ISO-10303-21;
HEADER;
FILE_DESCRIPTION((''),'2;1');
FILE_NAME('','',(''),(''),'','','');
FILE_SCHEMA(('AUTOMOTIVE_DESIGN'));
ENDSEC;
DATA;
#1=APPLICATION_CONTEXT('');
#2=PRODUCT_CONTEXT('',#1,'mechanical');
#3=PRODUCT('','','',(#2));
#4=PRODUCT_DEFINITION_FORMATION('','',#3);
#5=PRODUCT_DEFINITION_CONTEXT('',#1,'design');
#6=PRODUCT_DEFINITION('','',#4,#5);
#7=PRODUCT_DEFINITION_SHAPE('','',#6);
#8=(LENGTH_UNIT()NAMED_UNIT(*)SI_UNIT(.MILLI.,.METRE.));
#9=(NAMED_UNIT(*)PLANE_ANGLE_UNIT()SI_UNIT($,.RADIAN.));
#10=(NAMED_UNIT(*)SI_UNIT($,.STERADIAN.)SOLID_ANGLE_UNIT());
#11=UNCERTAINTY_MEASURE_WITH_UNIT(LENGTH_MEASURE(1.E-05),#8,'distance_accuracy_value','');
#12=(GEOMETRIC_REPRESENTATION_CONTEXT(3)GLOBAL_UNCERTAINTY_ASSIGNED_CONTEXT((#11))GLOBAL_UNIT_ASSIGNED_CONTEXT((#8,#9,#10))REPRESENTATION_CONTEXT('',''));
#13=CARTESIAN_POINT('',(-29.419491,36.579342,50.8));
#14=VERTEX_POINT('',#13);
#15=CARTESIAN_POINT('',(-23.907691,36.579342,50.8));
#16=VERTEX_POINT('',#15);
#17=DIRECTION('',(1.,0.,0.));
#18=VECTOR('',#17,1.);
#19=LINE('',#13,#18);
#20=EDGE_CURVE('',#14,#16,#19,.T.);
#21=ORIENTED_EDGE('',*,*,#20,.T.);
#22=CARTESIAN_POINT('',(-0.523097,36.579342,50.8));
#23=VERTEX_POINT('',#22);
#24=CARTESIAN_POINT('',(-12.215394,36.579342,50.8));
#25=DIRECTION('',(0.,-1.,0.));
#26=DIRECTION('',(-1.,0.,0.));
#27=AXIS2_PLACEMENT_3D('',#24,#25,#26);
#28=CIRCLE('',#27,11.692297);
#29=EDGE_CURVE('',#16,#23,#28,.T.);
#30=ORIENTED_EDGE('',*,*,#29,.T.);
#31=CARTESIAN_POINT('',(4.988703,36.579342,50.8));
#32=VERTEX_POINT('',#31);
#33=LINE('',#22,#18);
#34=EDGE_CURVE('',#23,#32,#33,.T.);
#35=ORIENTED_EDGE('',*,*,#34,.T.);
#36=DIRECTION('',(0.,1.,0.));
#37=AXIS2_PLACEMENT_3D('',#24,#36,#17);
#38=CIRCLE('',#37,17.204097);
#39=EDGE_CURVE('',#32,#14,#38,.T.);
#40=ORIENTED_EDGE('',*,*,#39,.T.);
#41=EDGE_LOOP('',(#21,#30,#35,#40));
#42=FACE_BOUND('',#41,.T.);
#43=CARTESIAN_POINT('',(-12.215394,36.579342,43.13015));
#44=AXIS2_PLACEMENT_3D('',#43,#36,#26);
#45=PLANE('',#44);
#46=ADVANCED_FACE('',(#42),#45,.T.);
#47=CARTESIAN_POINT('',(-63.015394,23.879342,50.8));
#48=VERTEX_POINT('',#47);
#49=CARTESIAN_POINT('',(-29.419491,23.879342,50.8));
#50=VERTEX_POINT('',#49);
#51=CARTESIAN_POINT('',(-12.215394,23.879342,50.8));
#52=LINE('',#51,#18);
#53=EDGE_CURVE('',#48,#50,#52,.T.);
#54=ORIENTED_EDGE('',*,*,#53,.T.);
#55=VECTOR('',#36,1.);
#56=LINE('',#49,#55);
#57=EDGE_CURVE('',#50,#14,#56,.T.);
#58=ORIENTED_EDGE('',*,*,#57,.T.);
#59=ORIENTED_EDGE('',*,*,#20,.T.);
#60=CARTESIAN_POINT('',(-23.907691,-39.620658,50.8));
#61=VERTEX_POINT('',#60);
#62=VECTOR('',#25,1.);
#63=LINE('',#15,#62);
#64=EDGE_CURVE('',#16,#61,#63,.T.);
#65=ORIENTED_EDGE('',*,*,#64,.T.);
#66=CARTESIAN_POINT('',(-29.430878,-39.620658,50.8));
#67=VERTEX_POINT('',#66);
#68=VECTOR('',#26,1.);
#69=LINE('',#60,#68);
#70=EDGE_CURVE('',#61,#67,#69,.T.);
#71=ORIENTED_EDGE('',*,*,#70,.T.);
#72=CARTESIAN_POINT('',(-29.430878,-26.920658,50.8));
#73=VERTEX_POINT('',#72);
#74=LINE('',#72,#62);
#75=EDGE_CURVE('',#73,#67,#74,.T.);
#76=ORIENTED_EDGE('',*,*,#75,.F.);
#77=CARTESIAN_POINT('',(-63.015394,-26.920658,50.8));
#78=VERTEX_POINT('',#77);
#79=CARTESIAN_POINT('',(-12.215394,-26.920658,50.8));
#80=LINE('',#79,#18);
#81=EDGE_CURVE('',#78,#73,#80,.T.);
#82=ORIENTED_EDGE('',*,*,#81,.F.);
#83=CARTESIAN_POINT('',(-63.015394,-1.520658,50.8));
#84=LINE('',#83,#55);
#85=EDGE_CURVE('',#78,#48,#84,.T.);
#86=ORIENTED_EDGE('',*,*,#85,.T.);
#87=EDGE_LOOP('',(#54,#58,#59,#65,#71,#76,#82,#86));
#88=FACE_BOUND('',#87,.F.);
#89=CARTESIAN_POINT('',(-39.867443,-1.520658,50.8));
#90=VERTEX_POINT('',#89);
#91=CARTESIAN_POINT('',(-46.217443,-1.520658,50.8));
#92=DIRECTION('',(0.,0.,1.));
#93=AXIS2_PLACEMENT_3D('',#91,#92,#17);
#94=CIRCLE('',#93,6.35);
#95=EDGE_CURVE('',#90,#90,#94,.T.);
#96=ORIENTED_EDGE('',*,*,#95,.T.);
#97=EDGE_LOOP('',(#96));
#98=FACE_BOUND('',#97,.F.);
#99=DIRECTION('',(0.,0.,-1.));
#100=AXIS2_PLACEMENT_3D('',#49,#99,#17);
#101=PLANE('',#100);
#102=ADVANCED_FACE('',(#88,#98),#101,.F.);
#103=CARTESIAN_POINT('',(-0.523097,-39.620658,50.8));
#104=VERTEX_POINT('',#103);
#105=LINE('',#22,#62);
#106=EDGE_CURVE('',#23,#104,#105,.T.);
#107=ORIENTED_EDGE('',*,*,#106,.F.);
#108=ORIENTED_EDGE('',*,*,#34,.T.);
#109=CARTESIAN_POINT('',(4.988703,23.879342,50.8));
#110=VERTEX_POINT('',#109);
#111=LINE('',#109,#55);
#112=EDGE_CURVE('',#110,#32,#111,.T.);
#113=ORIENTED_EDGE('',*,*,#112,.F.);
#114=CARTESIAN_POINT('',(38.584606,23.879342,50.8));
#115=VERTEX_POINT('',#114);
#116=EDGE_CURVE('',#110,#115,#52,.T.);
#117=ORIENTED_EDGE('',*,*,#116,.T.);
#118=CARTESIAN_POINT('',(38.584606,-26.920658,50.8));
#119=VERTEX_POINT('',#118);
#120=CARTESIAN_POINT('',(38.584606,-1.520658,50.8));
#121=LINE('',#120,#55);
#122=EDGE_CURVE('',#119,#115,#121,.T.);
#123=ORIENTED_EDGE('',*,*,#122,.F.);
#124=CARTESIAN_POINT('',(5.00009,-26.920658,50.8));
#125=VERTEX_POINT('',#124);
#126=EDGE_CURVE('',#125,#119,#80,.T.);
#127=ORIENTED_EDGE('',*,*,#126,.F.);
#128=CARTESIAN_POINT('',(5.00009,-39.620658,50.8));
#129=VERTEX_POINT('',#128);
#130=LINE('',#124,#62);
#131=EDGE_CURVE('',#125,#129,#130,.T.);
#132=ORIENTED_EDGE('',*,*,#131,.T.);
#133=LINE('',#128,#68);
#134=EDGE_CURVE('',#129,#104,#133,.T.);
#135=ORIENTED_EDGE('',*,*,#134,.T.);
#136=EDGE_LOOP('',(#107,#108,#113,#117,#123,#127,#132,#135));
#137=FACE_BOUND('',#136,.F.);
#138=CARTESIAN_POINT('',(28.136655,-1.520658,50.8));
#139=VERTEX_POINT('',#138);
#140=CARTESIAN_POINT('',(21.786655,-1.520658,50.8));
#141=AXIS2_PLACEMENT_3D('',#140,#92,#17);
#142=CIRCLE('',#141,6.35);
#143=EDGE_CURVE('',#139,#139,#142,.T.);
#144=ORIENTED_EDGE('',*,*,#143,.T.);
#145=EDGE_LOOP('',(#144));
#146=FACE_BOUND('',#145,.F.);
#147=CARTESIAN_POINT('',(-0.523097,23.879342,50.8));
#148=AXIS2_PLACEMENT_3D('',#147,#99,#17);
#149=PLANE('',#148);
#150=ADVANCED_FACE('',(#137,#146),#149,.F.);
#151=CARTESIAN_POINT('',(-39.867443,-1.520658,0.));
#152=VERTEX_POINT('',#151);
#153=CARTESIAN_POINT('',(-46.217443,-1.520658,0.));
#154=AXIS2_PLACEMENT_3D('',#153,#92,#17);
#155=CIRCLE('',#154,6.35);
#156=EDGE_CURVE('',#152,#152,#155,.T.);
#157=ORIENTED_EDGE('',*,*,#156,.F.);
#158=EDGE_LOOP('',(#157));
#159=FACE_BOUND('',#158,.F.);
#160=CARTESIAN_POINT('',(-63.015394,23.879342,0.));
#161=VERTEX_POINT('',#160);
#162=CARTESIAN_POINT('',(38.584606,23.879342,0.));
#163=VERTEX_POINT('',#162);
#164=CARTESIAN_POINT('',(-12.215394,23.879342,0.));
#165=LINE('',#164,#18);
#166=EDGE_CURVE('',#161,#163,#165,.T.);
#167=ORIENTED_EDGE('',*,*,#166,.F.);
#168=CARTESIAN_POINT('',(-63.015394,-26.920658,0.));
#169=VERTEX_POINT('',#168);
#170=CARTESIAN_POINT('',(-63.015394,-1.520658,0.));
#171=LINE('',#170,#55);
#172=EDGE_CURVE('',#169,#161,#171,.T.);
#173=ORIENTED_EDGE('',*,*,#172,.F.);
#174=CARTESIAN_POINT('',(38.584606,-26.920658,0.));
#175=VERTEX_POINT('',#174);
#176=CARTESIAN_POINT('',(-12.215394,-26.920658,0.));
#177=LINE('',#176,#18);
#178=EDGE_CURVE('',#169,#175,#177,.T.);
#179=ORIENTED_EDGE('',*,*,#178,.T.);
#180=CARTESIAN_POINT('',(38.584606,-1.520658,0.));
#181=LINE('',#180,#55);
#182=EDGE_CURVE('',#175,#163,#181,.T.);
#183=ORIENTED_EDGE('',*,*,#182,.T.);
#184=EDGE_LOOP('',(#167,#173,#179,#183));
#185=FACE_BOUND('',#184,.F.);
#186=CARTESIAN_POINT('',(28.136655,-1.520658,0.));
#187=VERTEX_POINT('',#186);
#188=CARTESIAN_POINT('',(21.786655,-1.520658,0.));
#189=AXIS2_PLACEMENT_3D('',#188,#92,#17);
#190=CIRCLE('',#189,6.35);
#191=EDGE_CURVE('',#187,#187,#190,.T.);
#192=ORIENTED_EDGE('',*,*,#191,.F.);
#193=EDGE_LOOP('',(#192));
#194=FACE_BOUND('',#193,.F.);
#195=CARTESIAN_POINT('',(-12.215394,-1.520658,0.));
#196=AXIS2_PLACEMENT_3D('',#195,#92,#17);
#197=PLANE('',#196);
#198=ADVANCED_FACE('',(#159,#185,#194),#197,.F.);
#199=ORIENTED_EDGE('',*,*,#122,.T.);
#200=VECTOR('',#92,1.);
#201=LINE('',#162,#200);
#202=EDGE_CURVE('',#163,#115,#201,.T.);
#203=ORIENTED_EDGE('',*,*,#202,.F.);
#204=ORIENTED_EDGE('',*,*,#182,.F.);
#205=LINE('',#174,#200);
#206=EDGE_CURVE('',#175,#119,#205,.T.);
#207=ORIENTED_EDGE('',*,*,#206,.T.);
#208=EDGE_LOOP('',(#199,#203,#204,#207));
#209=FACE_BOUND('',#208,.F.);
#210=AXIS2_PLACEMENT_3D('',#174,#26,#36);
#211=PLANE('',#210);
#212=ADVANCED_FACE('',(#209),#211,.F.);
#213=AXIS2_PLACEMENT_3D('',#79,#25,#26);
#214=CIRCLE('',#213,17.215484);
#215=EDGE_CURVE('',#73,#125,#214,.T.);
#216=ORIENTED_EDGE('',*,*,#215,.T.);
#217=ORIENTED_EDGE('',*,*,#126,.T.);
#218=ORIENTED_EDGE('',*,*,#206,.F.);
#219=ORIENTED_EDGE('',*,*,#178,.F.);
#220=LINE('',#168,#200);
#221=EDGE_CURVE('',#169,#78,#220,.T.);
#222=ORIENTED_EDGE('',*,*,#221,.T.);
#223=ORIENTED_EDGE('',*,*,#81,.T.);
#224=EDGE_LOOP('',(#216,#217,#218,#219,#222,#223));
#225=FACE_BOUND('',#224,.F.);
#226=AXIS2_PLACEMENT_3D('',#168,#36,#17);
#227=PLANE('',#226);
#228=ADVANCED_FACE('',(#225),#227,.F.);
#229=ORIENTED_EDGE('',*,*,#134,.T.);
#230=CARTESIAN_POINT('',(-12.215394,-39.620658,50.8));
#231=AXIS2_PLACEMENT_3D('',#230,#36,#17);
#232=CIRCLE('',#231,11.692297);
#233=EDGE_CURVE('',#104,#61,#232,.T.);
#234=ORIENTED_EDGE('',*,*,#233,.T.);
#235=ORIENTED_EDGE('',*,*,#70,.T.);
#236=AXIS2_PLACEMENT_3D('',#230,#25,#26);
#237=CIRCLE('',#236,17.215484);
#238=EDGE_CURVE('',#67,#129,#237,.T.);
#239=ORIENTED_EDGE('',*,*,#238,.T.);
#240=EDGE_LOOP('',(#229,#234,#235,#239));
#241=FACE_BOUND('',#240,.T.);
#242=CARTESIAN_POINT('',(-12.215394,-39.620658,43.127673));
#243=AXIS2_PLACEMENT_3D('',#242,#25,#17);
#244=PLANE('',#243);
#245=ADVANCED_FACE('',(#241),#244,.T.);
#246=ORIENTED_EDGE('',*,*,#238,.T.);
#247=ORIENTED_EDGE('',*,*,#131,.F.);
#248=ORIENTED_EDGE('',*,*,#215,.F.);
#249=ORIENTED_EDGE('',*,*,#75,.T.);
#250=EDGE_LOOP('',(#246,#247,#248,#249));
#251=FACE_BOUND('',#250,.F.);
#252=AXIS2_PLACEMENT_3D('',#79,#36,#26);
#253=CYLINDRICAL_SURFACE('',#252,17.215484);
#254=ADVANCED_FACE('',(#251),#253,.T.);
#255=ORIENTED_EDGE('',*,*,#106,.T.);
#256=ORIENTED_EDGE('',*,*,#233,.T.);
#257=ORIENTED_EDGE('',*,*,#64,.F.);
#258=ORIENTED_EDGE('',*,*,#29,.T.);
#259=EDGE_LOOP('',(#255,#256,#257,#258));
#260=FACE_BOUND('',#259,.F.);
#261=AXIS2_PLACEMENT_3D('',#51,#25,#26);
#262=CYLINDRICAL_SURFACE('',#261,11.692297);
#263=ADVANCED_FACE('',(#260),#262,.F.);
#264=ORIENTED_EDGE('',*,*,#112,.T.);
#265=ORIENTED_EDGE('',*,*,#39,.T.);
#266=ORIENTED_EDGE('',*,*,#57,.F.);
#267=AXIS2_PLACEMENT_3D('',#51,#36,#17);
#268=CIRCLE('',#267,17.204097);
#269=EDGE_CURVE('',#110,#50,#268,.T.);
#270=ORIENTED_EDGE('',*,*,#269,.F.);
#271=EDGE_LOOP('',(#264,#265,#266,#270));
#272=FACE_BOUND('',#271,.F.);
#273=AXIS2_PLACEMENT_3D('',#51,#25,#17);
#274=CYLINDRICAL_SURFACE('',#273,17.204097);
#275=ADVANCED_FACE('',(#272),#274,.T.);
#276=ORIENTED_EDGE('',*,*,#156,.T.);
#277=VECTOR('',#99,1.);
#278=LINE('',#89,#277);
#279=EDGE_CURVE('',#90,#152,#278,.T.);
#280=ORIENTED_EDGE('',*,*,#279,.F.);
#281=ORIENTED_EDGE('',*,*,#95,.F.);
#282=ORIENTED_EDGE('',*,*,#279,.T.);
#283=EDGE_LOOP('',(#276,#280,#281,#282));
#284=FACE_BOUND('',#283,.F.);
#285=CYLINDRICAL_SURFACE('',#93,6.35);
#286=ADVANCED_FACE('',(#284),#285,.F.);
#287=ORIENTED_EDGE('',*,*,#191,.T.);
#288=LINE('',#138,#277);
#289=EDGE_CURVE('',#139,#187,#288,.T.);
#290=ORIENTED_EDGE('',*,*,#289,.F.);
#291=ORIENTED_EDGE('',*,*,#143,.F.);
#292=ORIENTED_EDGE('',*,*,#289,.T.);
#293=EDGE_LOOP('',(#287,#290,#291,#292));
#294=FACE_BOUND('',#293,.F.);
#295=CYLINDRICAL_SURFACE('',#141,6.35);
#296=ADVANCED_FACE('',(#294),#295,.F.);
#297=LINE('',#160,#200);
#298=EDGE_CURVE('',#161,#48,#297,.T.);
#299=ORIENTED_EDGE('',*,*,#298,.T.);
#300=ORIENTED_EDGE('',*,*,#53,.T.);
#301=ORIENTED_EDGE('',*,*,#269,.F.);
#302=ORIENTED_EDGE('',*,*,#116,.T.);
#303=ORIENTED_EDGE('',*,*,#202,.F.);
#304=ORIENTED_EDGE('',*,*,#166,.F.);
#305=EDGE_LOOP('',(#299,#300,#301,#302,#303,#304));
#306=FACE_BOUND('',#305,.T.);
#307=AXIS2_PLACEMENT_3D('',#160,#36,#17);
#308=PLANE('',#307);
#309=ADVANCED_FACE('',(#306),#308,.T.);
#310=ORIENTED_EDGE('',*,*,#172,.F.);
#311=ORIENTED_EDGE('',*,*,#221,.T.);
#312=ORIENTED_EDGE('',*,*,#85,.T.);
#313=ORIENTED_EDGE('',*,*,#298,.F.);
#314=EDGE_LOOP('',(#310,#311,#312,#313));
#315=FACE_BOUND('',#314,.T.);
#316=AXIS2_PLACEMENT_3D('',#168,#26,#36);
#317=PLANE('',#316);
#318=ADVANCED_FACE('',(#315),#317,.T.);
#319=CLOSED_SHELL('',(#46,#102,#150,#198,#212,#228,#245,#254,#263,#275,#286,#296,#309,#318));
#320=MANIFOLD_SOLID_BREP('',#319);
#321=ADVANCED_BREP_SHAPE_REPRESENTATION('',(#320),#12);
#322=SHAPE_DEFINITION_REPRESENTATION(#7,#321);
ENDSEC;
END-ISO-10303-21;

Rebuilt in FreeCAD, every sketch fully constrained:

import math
import FreeCAD as App
import Part
import Sketcher
from FreeCAD import Vector
Q = App.Units.Quantity

doc = App.newDocument("Part")
body = doc.addObject("PartDesign::Body", "Body")

sketch1 = body.newObject("Sketcher::SketchObject", "Sketch")
sketch1.AttachmentSupport = (doc.getObject("XY_Plane"), [""])
sketch1.MapMode = "FlatFace"
sketch1.addGeometry([
    Part.LineSegment(Vector(-63, 24, 0), Vector(-63, -27, 0)),
    Part.LineSegment(Vector(-63, -27, 0), Vector(39, -27, 0)),
    Part.LineSegment(Vector(39, -27, 0), Vector(39, 24, 0)),
    Part.LineSegment(Vector(39, 24, 0), Vector(-63, 24, 0)),
], False)
sketch1.addConstraint([
    Sketcher.Constraint("Coincident", 0, 2, 1, 1),
    Sketcher.Constraint("Coincident", 1, 2, 2, 1),
    Sketcher.Constraint("Coincident", 2, 2, 3, 1),
    Sketcher.Constraint("Coincident", 3, 2, 0, 1),
    Sketcher.Constraint("Vertical", 0),
    Sketcher.Constraint("Horizontal", 1),
    Sketcher.Constraint("Vertical", 2),
    Sketcher.Constraint("Horizontal", 3),
    Sketcher.Constraint("DistanceX", 1, 1, 1, 2, Q("4 in")),
    Sketcher.Constraint("DistanceY", 0, 2, 0, 1, Q("2 in")),
    Sketcher.Constraint("DistanceX", 0, 2, -1, 1, Q("63.015394 mm")),
    Sketcher.Constraint("DistanceY", 0, 2, -1, 1, Q("26.920658 mm")),
])
pad1 = body.newObject("PartDesign::Pad", "Pad")
pad1.Profile = sketch1
pad1.Length = Q("2 in")

sketch2 = body.newObject("Sketcher::SketchObject", "Sketch001")
sketch2.AttachmentSupport = (doc.getObject("XZ_Plane"), [""])
sketch2.MapMode = "FlatFace"
sketch2.AttachmentOffset = App.Placement(Vector(0, 0, 26.920658), App.Rotation())
sketch2.addGeometry([
    Part.LineSegment(Vector(-1, 51, 0), Vector(-24, 51, 0)),
    Part.ArcOfCircle(Part.Circle(Vector(-12, 51, 0), Vector(0, 0, 1), 12), math.radians(180), math.radians(360)),
], False)
sketch2.addConstraint([
    Sketcher.Constraint("Coincident", 0, 1, 1, 2),
    Sketcher.Constraint("Coincident", 1, 1, 0, 2),
    Sketcher.Constraint("Horizontal", 0),
    Sketcher.Constraint("Horizontal", 1, 3, 0, 1),
    Sketcher.Constraint("DistanceY", -1, 1, 1, 3, Q("2 in")),
    Sketcher.Constraint("Radius", 1, Q("11.692297 mm")),
    Sketcher.Constraint("DistanceX", 1, 1, -1, 1, Q("23.907691 mm")),
])
pocket1 = body.newObject("PartDesign::Pocket", "Pocket")
pocket1.Profile = sketch2
pocket1.Length = Q("2.35 in")

sketch3 = body.newObject("Sketcher::SketchObject", "Sketch002")
sketch3.AttachmentSupport = (doc.getObject("XZ_Plane"), [""])
sketch3.MapMode = "FlatFace"
sketch3.AttachmentOffset = App.Placement(Vector(0, 0, 26.920658), App.Rotation())
sketch3.addGeometry([
    Part.LineSegment(Vector(-24, 51, 0), Vector(-29, 51, 0)),
    Part.ArcOfCircle(Part.Circle(Vector(-12, 51, 0), Vector(0, 0, 1), 17), math.radians(180), math.radians(360)),
    Part.LineSegment(Vector(5, 51, 0), Vector(-1, 51, 0)),
    Part.ArcOfCircle(Part.Circle(Vector(-12, 51, 0), Vector(0, 0, 1), 12), math.radians(180), math.radians(360)),
], False)
sketch3.addConstraint([
    Sketcher.Constraint("Coincident", 0, 2, 1, 1),
    Sketcher.Constraint("Coincident", 1, 2, 2, 1),
    Sketcher.Constraint("Coincident", 2, 2, 3, 2),
    Sketcher.Constraint("Coincident", 3, 1, 0, 1),
    Sketcher.Constraint("Horizontal", 0),
    Sketcher.Constraint("Horizontal", 2),
    Sketcher.Constraint("Coincident", 3, 3, 1, 3),
    Sketcher.Constraint("Horizontal", 3, 3, 0, 2),
    Sketcher.Constraint("Horizontal", 0, 2, 1, 2),
    Sketcher.Constraint("DistanceY", -1, 1, 1, 3, Q("2 in")),
    Sketcher.Constraint("Radius", 1, Q("17.215484 mm")),
    Sketcher.Constraint("Radius", 3, Q("11.692297 mm")),
    Sketcher.Constraint("DistanceX", 0, 2, -1, 1, Q("29.430878 mm")),
])
pad2 = body.newObject("PartDesign::Pad", "Pad001")
pad2.Profile = sketch3
pad2.Length = Q("0.5 in")

sketch4 = body.newObject("Sketcher::SketchObject", "Sketch003")
sketch4.AttachmentSupport = (doc.getObject("XZ_Plane"), [""])
sketch4.MapMode = "FlatFace"
sketch4.AttachmentOffset = App.Placement(Vector(0, 0, -23.879342), App.Rotation())
sketch4.addGeometry([
    Part.LineSegment(Vector(-1, 51, 0), Vector(5, 51, 0)),
    Part.ArcOfCircle(Part.Circle(Vector(-12, 51, 0), Vector(0, 0, 1), 17), math.radians(180), math.radians(360)),
    Part.LineSegment(Vector(-29, 51, 0), Vector(-24, 51, 0)),
    Part.ArcOfCircle(Part.Circle(Vector(-12, 51, 0), Vector(0, 0, 1), 12), math.radians(180), math.radians(360)),
], False)
sketch4.addConstraint([
    Sketcher.Constraint("Coincident", 0, 2, 1, 2),
    Sketcher.Constraint("Coincident", 1, 1, 2, 1),
    Sketcher.Constraint("Coincident", 2, 2, 3, 1),
    Sketcher.Constraint("Coincident", 3, 2, 0, 1),
    Sketcher.Constraint("Horizontal", 0),
    Sketcher.Constraint("Horizontal", 2),
    Sketcher.Constraint("Coincident", 3, 3, 1, 3),
    Sketcher.Constraint("Horizontal", 3, 3, 0, 2),
    Sketcher.Constraint("Horizontal", 0, 2, 1, 1),
    Sketcher.Constraint("DistanceY", -1, 1, 1, 3, Q("2 in")),
    Sketcher.Constraint("DistanceX", 0, 1, 0, 2, Q("0.217 in")),
    Sketcher.Constraint("Radius", 1, Q("17.204097 mm")),
    Sketcher.Constraint("DistanceX", 1, 1, -1, 1, Q("29.419491 mm")),
])
pad3 = body.newObject("PartDesign::Pad", "Pad002")
pad3.Profile = sketch4
pad3.Length = Q("0.5 in")
pad3.Reversed = True

sketch5 = body.newObject("Sketcher::SketchObject", "Sketch004")
sketch5.AttachmentSupport = (doc.getObject("XY_Plane"), [""])
sketch5.MapMode = "FlatFace"
sketch5.AttachmentOffset = App.Placement(Vector(0, 0, 2 * 25.4), App.Rotation())
sketch5.addGeometry(Part.Circle(Vector(-46, -2, 0), Vector(0, 0, 1), 6), False)
sketch5.addConstraint([
    Sketcher.Constraint("Diameter", 0, Q("0.5 in")),
    Sketcher.Constraint("DistanceY", 0, 3, -1, 1, Q("1.520658 mm")),
    Sketcher.Constraint("DistanceX", 0, 3, -1, 1, Q("46.217443 mm")),
])
pocket2 = body.newObject("PartDesign::Pocket", "Pocket001")
pocket2.Profile = sketch5
pocket2.Length = Q("2.67 in")

sketch6 = body.newObject("Sketcher::SketchObject", "Sketch005")
sketch6.AttachmentSupport = (doc.getObject("XY_Plane"), [""])
sketch6.MapMode = "FlatFace"
sketch6.AttachmentOffset = App.Placement(Vector(0, 0, 2 * 25.4), App.Rotation())
sketch6.addGeometry(Part.Circle(Vector(22, -2, 0), Vector(0, 0, 1), 6), False)
sketch6.addConstraint([
    Sketcher.Constraint("Diameter", 0, Q("0.5 in")),
    Sketcher.Constraint("DistanceY", 0, 3, -1, 1, Q("1.520658 mm")),
    Sketcher.Constraint("DistanceX", -1, 1, 0, 3, Q("21.786655 mm")),
])
pocket3 = body.newObject("PartDesign::Pocket", "Pocket002")
pocket3.Profile = sketch6
pocket3.Length = Q("3 in")

doc.recompute()
